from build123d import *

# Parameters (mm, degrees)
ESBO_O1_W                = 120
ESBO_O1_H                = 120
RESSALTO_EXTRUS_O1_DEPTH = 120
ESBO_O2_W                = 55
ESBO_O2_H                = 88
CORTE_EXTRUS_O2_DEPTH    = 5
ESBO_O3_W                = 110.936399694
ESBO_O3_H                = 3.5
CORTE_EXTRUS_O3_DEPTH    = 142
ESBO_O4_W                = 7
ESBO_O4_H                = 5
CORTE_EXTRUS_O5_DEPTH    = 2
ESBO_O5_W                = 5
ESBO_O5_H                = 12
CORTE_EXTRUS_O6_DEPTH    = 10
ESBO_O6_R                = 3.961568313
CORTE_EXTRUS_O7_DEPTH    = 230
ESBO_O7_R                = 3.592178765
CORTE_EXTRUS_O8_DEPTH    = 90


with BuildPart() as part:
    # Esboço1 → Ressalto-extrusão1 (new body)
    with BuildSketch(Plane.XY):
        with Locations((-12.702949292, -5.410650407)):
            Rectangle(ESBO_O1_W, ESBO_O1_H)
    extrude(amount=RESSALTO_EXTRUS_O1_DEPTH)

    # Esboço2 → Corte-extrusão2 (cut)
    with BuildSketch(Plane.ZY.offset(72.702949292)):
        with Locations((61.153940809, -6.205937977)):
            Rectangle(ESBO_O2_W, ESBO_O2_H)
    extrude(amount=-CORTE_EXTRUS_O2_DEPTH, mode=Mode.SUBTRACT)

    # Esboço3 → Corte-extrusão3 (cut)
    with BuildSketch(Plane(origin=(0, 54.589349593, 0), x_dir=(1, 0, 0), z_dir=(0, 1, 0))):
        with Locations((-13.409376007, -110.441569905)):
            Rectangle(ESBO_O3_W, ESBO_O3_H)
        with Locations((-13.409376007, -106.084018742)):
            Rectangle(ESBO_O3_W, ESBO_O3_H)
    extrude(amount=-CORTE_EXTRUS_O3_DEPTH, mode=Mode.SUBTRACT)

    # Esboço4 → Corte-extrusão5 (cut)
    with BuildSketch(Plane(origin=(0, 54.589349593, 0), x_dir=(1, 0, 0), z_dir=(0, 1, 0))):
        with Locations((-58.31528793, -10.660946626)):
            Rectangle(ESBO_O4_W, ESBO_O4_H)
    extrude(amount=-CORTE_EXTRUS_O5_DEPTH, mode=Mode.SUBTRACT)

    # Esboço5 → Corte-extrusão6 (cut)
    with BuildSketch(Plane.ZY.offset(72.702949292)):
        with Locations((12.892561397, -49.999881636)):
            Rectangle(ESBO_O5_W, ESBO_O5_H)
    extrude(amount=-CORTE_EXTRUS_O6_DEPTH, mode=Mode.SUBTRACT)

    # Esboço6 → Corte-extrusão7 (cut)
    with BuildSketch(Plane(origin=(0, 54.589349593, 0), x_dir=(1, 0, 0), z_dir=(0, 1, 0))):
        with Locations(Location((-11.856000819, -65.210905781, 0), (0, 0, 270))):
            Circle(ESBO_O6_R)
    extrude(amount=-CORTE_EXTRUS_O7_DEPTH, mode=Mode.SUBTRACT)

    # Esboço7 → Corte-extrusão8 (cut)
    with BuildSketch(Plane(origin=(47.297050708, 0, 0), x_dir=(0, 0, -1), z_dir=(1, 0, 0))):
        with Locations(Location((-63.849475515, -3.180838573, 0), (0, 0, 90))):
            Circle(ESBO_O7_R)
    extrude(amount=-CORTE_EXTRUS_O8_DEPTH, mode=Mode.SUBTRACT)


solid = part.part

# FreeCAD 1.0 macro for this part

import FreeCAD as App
import Part
import Sketcher

V = App.Vector
Q = App.Units.Quantity


def add_polygon(sketch, points):
    """Adds a closed chain of lines whose ends are joined by coincident constraints."""
    first, n = sketch.GeometryCount, len(points)
    for a, b in zip(points, points[1:] + points[:1]):
        sketch.addGeometry(Part.LineSegment(App.Vector(*a, 0), App.Vector(*b, 0)), False)
    for i in range(n):
        sketch.addConstraint(Sketcher.Constraint("Coincident", first + i, 2, first + (i + 1) % n, 1))

doc = App.newDocument("Part")
body = doc.addObject("PartDesign::Body", "Body")

sketch1 = body.newObject("Sketcher::SketchObject", "Sketch")
sketch1.AttachmentSupport = (doc.getObject("XY_Plane"), [""])
sketch1.MapMode = "FlatFace"
add_polygon(sketch1, [(-72.702949, 54.58935), (-72.702949, -65.41065), (47.297051, -65.41065), (47.297051, 54.58935)])
sketch1.addConstraint([
    Sketcher.Constraint("Vertical", 0),
    Sketcher.Constraint("Horizontal", 1),
    Sketcher.Constraint("Vertical", 2),
    Sketcher.Constraint("Horizontal", 3),
    Sketcher.Constraint("Equal", 3, 0),
    Sketcher.Constraint("DistanceX", 1, 1, 1, 2, Q("120 mm")),
    Sketcher.Constraint("DistanceX", 0, 2, -1, 1, Q("72.702949 mm")),
    Sketcher.Constraint("DistanceY", 0, 2, -1, 1, Q("65.41065 mm")),
])
pad1 = body.newObject("PartDesign::Pad", "Pad")
pad1.Profile = sketch1
pad1.Length = 120

sketch2 = body.newObject("Sketcher::SketchObject", "Sketch001")
sketch2.AttachmentSupport = (doc.getObject("YZ_Plane"), [""])
sketch2.MapMode = "FlatFace"
sketch2.AttachmentOffset = App.Placement(V(0, 0, -72.702949), App.Rotation())
add_polygon(sketch2, [(37.794062, 33.653941), (-50.205938, 33.653941), (-50.205938, 88.653941), (37.794062, 88.653941)])
sketch2.addConstraint([
    Sketcher.Constraint("Horizontal", 0),
    Sketcher.Constraint("Vertical", 1),
    Sketcher.Constraint("Horizontal", 2),
    Sketcher.Constraint("Vertical", 3),
    Sketcher.Constraint("DistanceX", 0, 2, 0, 1, Q("88 mm")),
    Sketcher.Constraint("DistanceY", 1, 1, 1, 2, Q("55 mm")),
    Sketcher.Constraint("DistanceY", -1, 1, 0, 2, Q("33.653941 mm")),
    Sketcher.Constraint("DistanceX", 0, 2, -1, 1, Q("50.205938 mm")),
])
pocket1 = body.newObject("PartDesign::Pocket", "Pocket")
pocket1.Profile = sketch2
pocket1.Length = 5
pocket1.Reversed = True

sketch3 = body.newObject("Sketcher::SketchObject", "Sketch002")
sketch3.AttachmentSupport = (doc.getObject("XZ_Plane"), [""])
sketch3.MapMode = "FlatFace"
sketch3.AttachmentOffset = App.Placement(V(0, 0, -54.58935), App.Rotation())
add_polygon(sketch3, [(-68.877576, 108.69157), (-68.877576, 112.19157), (42.058824, 112.19157), (42.058824, 108.69157)])
add_polygon(sketch3, [(-68.877576, 104.334019), (-68.877576, 107.834019), (42.058824, 107.834019), (42.058824, 104.334019)])
sketch3.addConstraint([
    Sketcher.Constraint("Vertical", 0),
    Sketcher.Constraint("Horizontal", 1),
    Sketcher.Constraint("Vertical", 2),
    Sketcher.Constraint("Horizontal", 3),
    Sketcher.Constraint("Vertical", 4),
    Sketcher.Constraint("Horizontal", 5),
    Sketcher.Constraint("Vertical", 6),
    Sketcher.Constraint("Horizontal", 7),
    Sketcher.Constraint("Vertical", 3, 2, 4, 2),
    Sketcher.Constraint("Vertical", 2, 2, 5, 2),
    Sketcher.Constraint("Equal", 2, 4),
    Sketcher.Constraint("DistanceY", 0, 1, 0, 2, Q("3.5 mm")),
    Sketcher.Constraint("DistanceX", 1, 1, 1, 2, Q("110.9364 mm")),
    Sketcher.Constraint("DistanceY", -1, 1, 0, 2, Q("112.19157 mm")),
    Sketcher.Constraint("DistanceY", -1, 1, 4, 2, Q("107.834019 mm")),
    Sketcher.Constraint("DistanceX", 0, 2, -1, 1, Q("68.877576 mm")),
])
pocket2 = body.newObject("PartDesign::Pocket", "Pocket001")
pocket2.Profile = sketch3
pocket2.Length = 142
pocket2.Reversed = True

sketch4 = body.newObject("Sketcher::SketchObject", "Sketch003")
sketch4.AttachmentSupport = (doc.getObject("XZ_Plane"), [""])
sketch4.MapMode = "FlatFace"
sketch4.AttachmentOffset = App.Placement(V(0, 0, -54.58935), App.Rotation())
add_polygon(sketch4, [(-61.815288, 8.160947), (-61.815288, 13.160947), (-54.815288, 13.160947), (-54.815288, 8.160947)])
sketch4.addConstraint([
    Sketcher.Constraint("Vertical", 0),
    Sketcher.Constraint("Horizontal", 1),
    Sketcher.Constraint("Vertical", 2),
    Sketcher.Constraint("Horizontal", 3),
    Sketcher.Constraint("DistanceX", 1, 1, 1, 2, Q("7 mm")),
    Sketcher.Constraint("DistanceY", 0, 1, 0, 2, Q("5 mm")),
    Sketcher.Constraint("DistanceX", 0, 2, -1, 1, Q("61.815288 mm")),
    Sketcher.Constraint("DistanceY", -1, 1, 0, 2, Q("13.160947 mm")),
])
pocket3 = body.newObject("PartDesign::Pocket", "Pocket002")
pocket3.Profile = sketch4
pocket3.Length = 2
pocket3.Reversed = True

sketch5 = body.newObject("Sketcher::SketchObject", "Sketch004")
sketch5.AttachmentSupport = (doc.getObject("YZ_Plane"), [""])
sketch5.MapMode = "FlatFace"
sketch5.AttachmentOffset = App.Placement(V(0, 0, -72.702949), App.Rotation())
add_polygon(sketch5, [(-43.999882, 10.392561), (-55.999882, 10.392561), (-55.999882, 15.392561), (-43.999882, 15.392561)])
sketch5.addConstraint([
    Sketcher.Constraint("Horizontal", 0),
    Sketcher.Constraint("Vertical", 1),
    Sketcher.Constraint("Horizontal", 2),
    Sketcher.Constraint("Vertical", 3),
    Sketcher.Constraint("DistanceX", 0, 2, 0, 1, Q("12 mm")),
    Sketcher.Constraint("DistanceY", 1, 1, 1, 2, Q("5 mm")),
    Sketcher.Constraint("DistanceX", 0, 2, -1, 1, Q("55.999882 mm")),
    Sketcher.Constraint("DistanceY", -1, 1, 0, 2, Q("10.392561 mm")),
])
pocket4 = body.newObject("PartDesign::Pocket", "Pocket003")
pocket4.Profile = sketch5
pocket4.Length = 10
pocket4.Reversed = True

sketch6 = body.newObject("Sketcher::SketchObject", "Sketch005")
sketch6.AttachmentSupport = (doc.getObject("XZ_Plane"), [""])
sketch6.MapMode = "FlatFace"
sketch6.AttachmentOffset = App.Placement(V(0, 0, -54.58935), App.Rotation())
sketch6.addGeometry(Part.Circle(V(-11.856001, 65.210906, 0), V(0, 0, 1), 3.961568), False)
sketch6.addConstraint([
    Sketcher.Constraint("Diameter", 0, Q("7.923137 mm")),
    Sketcher.Constraint("DistanceX", 0, 3, -1, 1, Q("11.856001 mm")),
    Sketcher.Constraint("DistanceY", -1, 1, 0, 3, Q("65.210906 mm")),
])
pocket5 = body.newObject("PartDesign::Pocket", "Pocket004")
pocket5.Profile = sketch6
pocket5.Length = 230
pocket5.Reversed = True

sketch7 = body.newObject("Sketcher::SketchObject", "Sketch006")
sketch7.AttachmentSupport = (doc.getObject("YZ_Plane"), [""])
sketch7.MapMode = "FlatFace"
sketch7.AttachmentOffset = App.Placement(V(0, 0, 47.297051), App.Rotation())
sketch7.addGeometry(Part.Circle(V(-3.180839, 63.849476, 0), V(0, 0, 1), 3.592179), False)
sketch7.addConstraint([
    Sketcher.Constraint("Diameter", 0, Q("7.184358 mm")),
    Sketcher.Constraint("DistanceX", 0, 3, -1, 1, Q("3.180839 mm")),
    Sketcher.Constraint("DistanceY", -1, 1, 0, 3, Q("63.849476 mm")),
])
pocket6 = body.newObject("PartDesign::Pocket", "Pocket005")
pocket6.Profile = sketch7
pocket6.Length = 90

doc.recompute()
